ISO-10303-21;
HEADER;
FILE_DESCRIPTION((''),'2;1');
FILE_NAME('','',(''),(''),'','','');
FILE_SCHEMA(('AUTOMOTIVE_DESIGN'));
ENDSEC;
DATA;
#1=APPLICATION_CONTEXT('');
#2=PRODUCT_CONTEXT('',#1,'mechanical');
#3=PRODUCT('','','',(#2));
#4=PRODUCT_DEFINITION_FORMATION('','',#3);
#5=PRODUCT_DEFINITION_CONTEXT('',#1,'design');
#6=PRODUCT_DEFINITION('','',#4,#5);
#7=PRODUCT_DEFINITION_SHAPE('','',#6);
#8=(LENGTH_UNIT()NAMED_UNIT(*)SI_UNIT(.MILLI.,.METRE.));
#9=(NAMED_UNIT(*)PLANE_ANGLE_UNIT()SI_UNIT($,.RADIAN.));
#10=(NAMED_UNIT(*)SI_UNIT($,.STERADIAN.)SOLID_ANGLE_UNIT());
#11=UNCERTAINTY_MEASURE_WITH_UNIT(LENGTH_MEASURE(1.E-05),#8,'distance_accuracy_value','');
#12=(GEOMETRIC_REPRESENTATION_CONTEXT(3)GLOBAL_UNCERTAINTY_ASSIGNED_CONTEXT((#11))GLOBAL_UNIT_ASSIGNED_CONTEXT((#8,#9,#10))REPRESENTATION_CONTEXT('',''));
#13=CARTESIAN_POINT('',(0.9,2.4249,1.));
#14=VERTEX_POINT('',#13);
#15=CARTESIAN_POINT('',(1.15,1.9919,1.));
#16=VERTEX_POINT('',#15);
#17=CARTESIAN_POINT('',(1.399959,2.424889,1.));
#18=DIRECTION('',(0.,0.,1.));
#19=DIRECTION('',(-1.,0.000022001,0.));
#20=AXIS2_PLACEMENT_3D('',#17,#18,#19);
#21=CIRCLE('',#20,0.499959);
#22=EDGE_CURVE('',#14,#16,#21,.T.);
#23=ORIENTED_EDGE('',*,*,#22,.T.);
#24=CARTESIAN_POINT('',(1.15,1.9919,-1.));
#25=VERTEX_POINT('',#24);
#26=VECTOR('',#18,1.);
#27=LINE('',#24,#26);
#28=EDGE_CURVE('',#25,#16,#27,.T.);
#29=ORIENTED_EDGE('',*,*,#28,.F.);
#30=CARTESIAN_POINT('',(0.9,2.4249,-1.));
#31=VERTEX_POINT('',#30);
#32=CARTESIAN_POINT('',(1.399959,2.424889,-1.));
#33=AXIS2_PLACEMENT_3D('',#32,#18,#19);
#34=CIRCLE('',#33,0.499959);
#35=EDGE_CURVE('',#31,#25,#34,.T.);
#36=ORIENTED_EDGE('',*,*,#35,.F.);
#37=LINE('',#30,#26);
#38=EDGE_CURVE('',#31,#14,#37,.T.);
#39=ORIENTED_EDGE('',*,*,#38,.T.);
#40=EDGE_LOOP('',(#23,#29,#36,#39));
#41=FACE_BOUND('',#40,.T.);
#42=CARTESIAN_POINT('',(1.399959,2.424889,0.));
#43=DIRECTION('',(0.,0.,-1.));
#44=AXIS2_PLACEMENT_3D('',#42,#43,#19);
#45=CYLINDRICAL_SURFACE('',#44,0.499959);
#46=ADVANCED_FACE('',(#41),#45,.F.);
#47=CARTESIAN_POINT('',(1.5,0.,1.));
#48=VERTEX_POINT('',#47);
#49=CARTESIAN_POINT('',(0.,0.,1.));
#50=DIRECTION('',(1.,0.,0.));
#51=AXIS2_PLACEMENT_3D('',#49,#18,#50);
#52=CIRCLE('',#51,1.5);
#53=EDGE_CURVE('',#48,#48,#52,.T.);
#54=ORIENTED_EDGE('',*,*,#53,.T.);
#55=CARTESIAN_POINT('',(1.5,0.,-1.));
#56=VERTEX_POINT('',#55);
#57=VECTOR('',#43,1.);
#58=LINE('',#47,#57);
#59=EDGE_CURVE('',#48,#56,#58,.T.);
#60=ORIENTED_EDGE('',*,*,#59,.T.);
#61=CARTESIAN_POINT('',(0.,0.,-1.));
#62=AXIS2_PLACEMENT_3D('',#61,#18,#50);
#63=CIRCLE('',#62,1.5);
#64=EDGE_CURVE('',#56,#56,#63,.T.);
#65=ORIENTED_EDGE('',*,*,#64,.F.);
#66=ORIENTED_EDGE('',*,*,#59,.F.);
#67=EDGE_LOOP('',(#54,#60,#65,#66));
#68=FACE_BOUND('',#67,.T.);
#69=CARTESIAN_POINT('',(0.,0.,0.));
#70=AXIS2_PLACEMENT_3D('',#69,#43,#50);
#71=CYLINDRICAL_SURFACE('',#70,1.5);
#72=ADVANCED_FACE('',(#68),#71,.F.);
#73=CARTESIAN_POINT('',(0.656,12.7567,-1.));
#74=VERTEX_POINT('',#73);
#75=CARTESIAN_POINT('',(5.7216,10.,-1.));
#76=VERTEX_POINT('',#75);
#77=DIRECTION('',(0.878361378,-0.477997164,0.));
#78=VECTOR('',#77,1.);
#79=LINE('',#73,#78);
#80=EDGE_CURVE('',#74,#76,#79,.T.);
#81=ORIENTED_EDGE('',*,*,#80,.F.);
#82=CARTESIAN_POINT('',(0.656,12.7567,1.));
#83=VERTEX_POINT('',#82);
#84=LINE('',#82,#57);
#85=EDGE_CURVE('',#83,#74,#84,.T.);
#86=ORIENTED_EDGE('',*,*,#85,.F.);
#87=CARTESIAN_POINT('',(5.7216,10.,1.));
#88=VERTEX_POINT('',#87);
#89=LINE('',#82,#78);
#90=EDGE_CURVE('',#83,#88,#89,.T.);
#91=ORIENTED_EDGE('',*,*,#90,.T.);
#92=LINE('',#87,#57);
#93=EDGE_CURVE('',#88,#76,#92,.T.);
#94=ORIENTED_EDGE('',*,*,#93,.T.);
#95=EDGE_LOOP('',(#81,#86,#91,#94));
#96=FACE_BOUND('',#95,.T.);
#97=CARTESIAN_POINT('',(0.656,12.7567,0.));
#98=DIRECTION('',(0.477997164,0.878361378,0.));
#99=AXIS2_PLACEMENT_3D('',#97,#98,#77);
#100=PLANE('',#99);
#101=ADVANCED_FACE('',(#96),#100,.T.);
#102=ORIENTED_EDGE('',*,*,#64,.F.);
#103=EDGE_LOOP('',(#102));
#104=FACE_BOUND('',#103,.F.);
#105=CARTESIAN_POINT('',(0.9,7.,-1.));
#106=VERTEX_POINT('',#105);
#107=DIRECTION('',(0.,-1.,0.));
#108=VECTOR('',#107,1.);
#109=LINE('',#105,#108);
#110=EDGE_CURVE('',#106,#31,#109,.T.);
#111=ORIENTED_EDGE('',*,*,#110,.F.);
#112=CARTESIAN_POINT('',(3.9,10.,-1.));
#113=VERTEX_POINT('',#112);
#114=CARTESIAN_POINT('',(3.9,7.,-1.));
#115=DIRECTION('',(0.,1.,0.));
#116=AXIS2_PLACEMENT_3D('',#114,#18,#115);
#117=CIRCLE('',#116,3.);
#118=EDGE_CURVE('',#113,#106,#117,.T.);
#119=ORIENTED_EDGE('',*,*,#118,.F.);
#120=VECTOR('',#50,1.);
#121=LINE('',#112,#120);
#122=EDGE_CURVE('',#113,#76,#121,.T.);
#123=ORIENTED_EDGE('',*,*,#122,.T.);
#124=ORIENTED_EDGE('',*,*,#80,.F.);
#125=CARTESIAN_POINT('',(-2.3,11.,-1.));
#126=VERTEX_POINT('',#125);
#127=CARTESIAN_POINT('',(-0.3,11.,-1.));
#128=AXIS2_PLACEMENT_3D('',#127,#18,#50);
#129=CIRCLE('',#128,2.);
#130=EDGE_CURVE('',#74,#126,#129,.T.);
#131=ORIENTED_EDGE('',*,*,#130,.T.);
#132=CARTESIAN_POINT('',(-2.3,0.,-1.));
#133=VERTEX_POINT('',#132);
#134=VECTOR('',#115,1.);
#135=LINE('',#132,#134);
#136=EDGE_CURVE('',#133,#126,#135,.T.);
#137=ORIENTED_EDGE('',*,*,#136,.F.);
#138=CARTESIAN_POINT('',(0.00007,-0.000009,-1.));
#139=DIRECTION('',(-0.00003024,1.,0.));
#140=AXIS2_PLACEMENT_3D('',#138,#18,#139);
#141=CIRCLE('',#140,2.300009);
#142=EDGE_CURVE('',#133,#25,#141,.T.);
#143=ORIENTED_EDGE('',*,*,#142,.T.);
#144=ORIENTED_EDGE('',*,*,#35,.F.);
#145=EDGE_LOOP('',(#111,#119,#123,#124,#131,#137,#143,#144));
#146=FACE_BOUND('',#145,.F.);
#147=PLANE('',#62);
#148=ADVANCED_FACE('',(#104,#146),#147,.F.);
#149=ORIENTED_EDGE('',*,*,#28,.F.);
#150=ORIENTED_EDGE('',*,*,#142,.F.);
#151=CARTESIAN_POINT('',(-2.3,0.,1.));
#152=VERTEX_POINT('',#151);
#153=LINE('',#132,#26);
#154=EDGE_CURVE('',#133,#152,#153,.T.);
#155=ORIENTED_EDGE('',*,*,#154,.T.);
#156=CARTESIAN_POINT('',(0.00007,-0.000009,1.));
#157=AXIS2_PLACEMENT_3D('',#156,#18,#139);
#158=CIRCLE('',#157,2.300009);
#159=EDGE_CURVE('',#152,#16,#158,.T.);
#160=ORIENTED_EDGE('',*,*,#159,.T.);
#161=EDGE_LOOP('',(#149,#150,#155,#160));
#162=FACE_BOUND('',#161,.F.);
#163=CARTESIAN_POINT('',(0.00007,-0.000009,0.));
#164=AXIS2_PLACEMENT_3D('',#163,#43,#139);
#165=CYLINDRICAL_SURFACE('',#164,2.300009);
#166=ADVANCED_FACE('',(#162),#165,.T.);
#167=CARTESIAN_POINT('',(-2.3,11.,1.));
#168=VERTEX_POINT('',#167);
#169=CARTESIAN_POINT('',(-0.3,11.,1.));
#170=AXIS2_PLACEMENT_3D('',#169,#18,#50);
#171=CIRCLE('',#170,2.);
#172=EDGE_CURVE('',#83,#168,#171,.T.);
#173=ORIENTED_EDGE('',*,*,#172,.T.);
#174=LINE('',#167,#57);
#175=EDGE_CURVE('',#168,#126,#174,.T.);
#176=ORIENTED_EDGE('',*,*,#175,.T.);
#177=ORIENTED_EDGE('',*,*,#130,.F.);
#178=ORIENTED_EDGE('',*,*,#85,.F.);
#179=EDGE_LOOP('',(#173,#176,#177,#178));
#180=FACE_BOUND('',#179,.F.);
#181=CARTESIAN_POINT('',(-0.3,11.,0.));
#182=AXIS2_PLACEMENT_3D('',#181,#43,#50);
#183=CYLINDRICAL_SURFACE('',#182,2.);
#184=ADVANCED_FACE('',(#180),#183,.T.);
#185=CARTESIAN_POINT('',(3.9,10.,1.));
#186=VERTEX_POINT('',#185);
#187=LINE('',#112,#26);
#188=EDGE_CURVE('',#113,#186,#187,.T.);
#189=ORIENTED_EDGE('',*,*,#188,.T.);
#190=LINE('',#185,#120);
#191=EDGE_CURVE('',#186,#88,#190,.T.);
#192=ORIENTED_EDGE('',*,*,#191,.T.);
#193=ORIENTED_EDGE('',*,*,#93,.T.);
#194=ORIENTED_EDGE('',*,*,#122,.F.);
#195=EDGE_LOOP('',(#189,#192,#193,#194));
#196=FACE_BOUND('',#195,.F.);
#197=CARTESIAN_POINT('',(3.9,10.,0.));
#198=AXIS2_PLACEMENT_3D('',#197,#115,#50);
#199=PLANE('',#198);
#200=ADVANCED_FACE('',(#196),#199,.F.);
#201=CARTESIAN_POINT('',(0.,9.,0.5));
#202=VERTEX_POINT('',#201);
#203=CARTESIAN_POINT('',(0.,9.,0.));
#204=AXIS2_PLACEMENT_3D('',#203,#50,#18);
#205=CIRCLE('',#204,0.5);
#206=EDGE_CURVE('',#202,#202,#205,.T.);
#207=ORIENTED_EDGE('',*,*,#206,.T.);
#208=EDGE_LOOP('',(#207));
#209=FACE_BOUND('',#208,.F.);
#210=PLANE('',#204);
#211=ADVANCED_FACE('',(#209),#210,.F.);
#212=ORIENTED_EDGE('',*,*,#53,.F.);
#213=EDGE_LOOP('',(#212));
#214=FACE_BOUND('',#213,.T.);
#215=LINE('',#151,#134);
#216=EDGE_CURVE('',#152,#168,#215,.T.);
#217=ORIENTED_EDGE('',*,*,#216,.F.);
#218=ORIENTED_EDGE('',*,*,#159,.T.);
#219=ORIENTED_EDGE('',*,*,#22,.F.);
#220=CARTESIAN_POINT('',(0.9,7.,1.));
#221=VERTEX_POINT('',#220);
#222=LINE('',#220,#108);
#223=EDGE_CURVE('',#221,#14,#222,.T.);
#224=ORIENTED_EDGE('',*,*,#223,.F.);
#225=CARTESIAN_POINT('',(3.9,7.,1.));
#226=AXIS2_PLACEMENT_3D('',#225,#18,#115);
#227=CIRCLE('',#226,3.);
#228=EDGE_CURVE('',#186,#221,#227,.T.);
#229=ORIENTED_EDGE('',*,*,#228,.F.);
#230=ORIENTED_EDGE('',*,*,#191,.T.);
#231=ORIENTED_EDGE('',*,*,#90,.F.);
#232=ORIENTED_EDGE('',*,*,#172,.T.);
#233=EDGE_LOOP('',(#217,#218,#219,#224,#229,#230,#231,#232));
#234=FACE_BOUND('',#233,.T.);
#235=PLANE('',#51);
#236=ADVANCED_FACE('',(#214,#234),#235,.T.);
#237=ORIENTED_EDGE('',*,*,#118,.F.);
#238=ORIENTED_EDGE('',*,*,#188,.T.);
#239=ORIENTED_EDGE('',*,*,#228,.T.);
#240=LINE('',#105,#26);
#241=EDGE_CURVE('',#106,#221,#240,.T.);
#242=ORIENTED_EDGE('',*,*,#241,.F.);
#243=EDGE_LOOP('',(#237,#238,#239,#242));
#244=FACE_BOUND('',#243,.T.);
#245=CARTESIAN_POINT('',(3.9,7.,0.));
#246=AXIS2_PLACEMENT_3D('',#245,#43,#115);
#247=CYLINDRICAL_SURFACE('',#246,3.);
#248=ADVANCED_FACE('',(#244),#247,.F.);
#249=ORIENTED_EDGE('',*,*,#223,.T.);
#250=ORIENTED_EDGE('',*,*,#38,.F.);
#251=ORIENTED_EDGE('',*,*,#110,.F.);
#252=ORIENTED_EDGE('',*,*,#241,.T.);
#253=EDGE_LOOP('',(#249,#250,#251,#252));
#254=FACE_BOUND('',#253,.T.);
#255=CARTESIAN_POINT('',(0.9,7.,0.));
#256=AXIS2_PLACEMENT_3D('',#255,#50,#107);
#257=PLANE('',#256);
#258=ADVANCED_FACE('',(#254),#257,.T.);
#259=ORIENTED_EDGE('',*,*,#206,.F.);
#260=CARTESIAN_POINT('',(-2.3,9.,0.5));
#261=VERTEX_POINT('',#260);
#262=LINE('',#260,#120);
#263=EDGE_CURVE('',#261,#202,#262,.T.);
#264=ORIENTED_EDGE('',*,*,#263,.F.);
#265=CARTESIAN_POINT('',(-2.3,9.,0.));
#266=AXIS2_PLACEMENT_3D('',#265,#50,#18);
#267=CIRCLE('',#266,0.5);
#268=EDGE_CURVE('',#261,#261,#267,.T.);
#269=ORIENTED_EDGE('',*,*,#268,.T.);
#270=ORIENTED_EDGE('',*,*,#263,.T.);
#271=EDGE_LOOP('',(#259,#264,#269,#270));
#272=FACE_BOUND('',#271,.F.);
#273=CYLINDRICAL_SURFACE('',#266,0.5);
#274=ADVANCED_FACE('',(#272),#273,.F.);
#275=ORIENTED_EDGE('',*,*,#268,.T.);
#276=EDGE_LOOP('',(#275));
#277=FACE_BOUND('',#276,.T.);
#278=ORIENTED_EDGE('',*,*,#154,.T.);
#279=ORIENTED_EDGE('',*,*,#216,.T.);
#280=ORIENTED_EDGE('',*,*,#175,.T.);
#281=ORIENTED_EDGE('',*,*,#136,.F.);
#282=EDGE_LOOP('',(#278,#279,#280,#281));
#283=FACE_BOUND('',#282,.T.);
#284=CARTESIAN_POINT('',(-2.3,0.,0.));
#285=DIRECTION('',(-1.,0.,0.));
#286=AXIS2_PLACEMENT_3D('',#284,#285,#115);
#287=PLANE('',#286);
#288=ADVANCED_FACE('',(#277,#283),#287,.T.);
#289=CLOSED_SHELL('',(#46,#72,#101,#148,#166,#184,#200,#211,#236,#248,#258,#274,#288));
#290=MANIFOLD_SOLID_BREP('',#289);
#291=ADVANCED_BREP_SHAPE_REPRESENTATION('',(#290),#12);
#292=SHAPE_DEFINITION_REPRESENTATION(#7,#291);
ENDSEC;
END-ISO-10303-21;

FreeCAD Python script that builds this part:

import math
import FreeCAD as App
import Part
import Sketcher
Q = App.Units.Quantity

doc = App.newDocument("Part")
body = doc.addObject("PartDesign::Body", "Body")

# Sketch on XY plane
sketch1 = body.newObject("Sketcher::SketchObject", "Sketch")
sketch1.AttachmentSupport = (doc.getObject("XY_Plane"), [""])
sketch1.MapMode = "FlatFace"
sketch1.addGeometry([
    Part.LineSegment(App.Vector(-2.3, 11, 0), App.Vector(-2.3, 0, 0)),  # 0
    Part.ArcOfCircle(Part.Circle(App.Vector(0, 0, 0), App.Vector(0, 0, 1), 2.3), math.radians(180), math.radians(420)),  # 1
    Part.ArcOfCircle(Part.Circle(App.Vector(1.4, 2.42, 0), App.Vector(0, 0, 1), 0.5), math.radians(180), math.radians(240)),  # 2
    Part.LineSegment(App.Vector(0.9, 2.42, 0), App.Vector(0.9, 7, 0)),  # 3
    Part.ArcOfCircle(Part.Circle(App.Vector(3.9, 7, 0), App.Vector(0, 0, 1), 3), math.radians(90), math.radians(180)),  # 4
    Part.LineSegment(App.Vector(3.9, 10, 0), App.Vector(5.72, 10, 0)),  # 5
    Part.LineSegment(App.Vector(5.72, 10, 0), App.Vector(0.66, 12.76, 0)),  # 6
    Part.ArcOfCircle(Part.Circle(App.Vector(-0.3, 11, 0), App.Vector(0, 0, 1), 2), math.radians(61), math.radians(180)),  # 7
    Part.Circle(App.Vector(0, 0, 0), App.Vector(0, 0, 1), 1.5),  # 8
], False)
sketch1.addConstraint([
    Sketcher.Constraint("Tangent", 0, 2, 1, 1),
    Sketcher.Constraint("Tangent", 1, 2, 2, 2),
    Sketcher.Constraint("Tangent", 2, 1, 3, 1),
    Sketcher.Constraint("Tangent", 3, 2, 4, 2),
    Sketcher.Constraint("Tangent", 4, 1, 5, 1),
    Sketcher.Constraint("Coincident", 5, 2, 6, 1),
    Sketcher.Constraint("Tangent", 6, 2, 7, 1),
    Sketcher.Constraint("Tangent", 7, 2, 0, 1),
    Sketcher.Constraint("Vertical", 0),
    Sketcher.Constraint("Vertical", 3),
    Sketcher.Constraint("Horizontal", 5),
    Sketcher.Constraint("Coincident", 1, 3, -1, 1),
    Sketcher.Constraint("Coincident", 8, 3, -1, 1),
    Sketcher.Constraint("Diameter", 8, Q("3 mm")),
    Sketcher.Constraint("Radius", 4, Q("3 mm")),
    Sketcher.Constraint("Radius", 7, Q("2 mm")),
    Sketcher.Constraint("Radius", 1, Q("2.3 mm")),
    Sketcher.Constraint("Radius", 2, Q("0.5 mm")),
    Sketcher.Constraint("DistanceY", 0, 2, 0, 1, Q("11 mm")),
    Sketcher.Constraint("DistanceY", -1, 1, 4, 1, Q("10 mm")),
    Sketcher.Constraint("DistanceX", 0, 2, 2, 1, Q("3.2 mm")),
    Sketcher.Constraint("DistanceX", 5, 1, 5, 2, Q("1.8216 mm")),
])
pad1 = body.newObject("PartDesign::Pad", "Pad")
pad1.Profile = sketch1
pad1.Length = 2
pad1.Midplane = True

# Sketch on YZ plane
sketch2 = body.newObject("Sketcher::SketchObject", "Sketch001")
sketch2.AttachmentSupport = (doc.getObject("YZ_Plane"), [""])
sketch2.MapMode = "FlatFace"
sketch2.AttachmentOffset = App.Placement(App.Vector(0, 0, -2.3), App.Rotation())
sketch2.addGeometry(Part.Circle(App.Vector(9, 0, 0), App.Vector(0, 0, 1), 0.5), False)
sketch2.addConstraint([
    Sketcher.Constraint("PointOnObject", 0, 3, -1),
    Sketcher.Constraint("Diameter", 0, Q("1 mm")),
    Sketcher.Constraint("DistanceX", -1, 1, 0, 3, Q("9 mm")),
])
doc.recompute()
hole = body.newObject("PartDesign::Hole", "Hole")
hole.Profile = sketch2
hole.ThreadType = "None"
hole.Diameter = 1
hole.DepthType = "Dimension"
hole.Depth = 2.3
hole.DrillPoint = "Flat"
hole.Reversed = True

doc.recompute()
